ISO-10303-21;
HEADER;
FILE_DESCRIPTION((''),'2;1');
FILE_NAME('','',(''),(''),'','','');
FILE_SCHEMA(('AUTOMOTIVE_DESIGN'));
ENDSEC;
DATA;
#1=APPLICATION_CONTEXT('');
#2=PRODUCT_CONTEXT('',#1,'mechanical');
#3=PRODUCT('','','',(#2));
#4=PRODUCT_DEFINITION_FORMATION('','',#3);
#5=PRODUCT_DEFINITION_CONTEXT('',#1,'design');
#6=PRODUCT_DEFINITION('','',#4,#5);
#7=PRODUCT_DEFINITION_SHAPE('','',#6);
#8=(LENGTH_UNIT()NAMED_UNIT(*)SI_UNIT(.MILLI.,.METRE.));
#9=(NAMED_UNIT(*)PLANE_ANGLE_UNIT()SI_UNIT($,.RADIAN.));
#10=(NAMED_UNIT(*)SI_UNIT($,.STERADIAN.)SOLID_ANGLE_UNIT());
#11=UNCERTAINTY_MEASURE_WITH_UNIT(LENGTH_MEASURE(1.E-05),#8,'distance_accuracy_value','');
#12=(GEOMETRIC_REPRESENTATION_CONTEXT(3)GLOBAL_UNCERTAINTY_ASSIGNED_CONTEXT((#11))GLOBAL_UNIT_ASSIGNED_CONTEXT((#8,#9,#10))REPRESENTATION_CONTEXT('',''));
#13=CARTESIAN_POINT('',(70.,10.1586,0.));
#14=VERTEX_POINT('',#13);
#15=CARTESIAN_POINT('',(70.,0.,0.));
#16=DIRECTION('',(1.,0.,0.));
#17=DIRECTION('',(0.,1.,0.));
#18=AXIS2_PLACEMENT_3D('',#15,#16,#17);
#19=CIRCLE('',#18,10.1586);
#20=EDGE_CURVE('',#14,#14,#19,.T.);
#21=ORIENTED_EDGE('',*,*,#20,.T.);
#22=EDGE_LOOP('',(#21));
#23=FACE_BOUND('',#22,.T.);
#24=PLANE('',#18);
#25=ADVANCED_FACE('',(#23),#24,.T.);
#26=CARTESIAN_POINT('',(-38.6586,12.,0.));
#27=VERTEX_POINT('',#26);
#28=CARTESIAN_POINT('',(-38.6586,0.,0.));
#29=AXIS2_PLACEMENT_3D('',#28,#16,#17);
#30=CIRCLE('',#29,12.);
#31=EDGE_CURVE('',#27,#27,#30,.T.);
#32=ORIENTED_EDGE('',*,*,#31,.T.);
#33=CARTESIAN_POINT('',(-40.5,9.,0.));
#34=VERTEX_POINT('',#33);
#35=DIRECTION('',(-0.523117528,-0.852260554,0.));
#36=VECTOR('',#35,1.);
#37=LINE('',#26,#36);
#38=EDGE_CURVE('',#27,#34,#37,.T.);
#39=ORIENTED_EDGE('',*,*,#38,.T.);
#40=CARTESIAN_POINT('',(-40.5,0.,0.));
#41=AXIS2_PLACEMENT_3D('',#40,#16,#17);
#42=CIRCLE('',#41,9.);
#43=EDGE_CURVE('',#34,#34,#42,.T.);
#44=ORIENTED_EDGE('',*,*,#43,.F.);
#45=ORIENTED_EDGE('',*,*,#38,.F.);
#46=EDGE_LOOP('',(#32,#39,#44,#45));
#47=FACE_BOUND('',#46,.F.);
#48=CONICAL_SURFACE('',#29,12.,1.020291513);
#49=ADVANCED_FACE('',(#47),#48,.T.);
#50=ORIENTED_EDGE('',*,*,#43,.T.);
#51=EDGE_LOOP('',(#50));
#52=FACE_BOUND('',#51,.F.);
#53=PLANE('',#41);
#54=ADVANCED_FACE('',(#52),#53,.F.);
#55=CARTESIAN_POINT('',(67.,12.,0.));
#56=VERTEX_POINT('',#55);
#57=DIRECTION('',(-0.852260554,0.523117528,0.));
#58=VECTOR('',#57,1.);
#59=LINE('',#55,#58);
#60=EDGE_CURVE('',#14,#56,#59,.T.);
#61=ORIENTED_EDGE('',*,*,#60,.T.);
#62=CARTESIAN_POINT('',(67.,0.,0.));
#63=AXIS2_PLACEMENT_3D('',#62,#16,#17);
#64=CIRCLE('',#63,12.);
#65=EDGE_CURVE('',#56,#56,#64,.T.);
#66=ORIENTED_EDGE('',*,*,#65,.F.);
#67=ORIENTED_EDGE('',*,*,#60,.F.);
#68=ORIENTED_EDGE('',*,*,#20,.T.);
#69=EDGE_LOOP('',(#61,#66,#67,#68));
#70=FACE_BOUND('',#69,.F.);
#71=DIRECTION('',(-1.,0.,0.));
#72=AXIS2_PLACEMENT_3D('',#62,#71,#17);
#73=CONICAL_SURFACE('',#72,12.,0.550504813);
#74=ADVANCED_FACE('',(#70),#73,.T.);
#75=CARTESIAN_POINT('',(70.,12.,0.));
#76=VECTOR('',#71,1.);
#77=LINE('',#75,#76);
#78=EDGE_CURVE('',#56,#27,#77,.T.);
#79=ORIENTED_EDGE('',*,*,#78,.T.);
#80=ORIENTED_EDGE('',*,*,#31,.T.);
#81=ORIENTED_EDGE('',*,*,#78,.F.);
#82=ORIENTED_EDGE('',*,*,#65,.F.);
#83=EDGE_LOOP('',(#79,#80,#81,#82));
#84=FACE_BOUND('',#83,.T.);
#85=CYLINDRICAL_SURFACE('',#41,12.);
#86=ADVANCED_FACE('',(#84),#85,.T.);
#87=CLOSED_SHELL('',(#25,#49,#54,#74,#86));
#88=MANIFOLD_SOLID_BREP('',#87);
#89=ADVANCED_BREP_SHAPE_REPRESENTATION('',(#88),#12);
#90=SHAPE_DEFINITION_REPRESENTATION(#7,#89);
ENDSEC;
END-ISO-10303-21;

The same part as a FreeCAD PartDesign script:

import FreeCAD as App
import Part
import Sketcher

V = App.Vector


def edges_at(feature, points):
    """Names of the edges that pass closest to the given points."""
    edges = feature.Shape.Edges
    near = lambda p: min(range(len(edges)), key=lambda i: edges[i].distToShape(Part.Vertex(*p))[0])
    return sorted({f"Edge{near(p) + 1}" for p in points})

doc = App.newDocument("Part")
body = doc.addObject("PartDesign::Body", "Body")

sketch1 = body.newObject("Sketcher::SketchObject", "Sketch")
sketch1.AttachmentSupport = (doc.getObject("XY_Plane"), [""])
sketch1.MapMode = "FlatFace"
sketch1.addGeometry([
    Part.LineSegment(V(70, 0, 0), V(70, 12, 0)),
    Part.LineSegment(V(70, 12, 0), V(-40, 12, 0)),
    Part.LineSegment(V(-40, 12, 0), V(-40, 0, 0)),
    Part.LineSegment(V(-40, 0, 0), V(70, 0, 0)),
], False)
sketch1.addConstraint([
    Sketcher.Constraint("Coincident", 0, 2, 1, 1),
    Sketcher.Constraint("Coincident", 1, 2, 2, 1),
    Sketcher.Constraint("Coincident", 2, 2, 3, 1),
    Sketcher.Constraint("Coincident", 3, 2, 0, 1),
    Sketcher.Constraint("Vertical", 0),
    Sketcher.Constraint("Horizontal", 1),
    Sketcher.Constraint("Vertical", 2),
    Sketcher.Constraint("Horizontal", 3),
    Sketcher.Constraint("PointOnObject", 2, 2, -1),
    Sketcher.Constraint("DistanceX", -1, 1, 0, 2, 70.0),
    Sketcher.Constraint("DistanceX", 1, 2, -1, 1, 40.5),
    Sketcher.Constraint("DistanceY", 0, 1, 0, 2, 12.0),
])
revolution = body.newObject("PartDesign::Revolution", "Revolution")
revolution.Profile = sketch1
revolution.ReferenceAxis = (sketch1, ["H_Axis"])
revolution.Angle = 360
doc.recompute()

chamfer = body.newObject("PartDesign::Chamfer", "Chamfer")
chamfer.Base = (revolution, edges_at(revolution, [(70, -12, 0)]))
chamfer.ChamferType = "Two distances"
chamfer.Size = 1.8414
chamfer.Size2 = 3
doc.recompute()

chamfer2 = body.newObject("PartDesign::Chamfer", "Chamfer001")
chamfer2.Base = (chamfer, edges_at(chamfer, [(-40.5, -12, 0)]))
chamfer2.ChamferType = "Two distances"
chamfer2.Size = 1.8414
chamfer2.Size2 = 3

doc.recompute()
